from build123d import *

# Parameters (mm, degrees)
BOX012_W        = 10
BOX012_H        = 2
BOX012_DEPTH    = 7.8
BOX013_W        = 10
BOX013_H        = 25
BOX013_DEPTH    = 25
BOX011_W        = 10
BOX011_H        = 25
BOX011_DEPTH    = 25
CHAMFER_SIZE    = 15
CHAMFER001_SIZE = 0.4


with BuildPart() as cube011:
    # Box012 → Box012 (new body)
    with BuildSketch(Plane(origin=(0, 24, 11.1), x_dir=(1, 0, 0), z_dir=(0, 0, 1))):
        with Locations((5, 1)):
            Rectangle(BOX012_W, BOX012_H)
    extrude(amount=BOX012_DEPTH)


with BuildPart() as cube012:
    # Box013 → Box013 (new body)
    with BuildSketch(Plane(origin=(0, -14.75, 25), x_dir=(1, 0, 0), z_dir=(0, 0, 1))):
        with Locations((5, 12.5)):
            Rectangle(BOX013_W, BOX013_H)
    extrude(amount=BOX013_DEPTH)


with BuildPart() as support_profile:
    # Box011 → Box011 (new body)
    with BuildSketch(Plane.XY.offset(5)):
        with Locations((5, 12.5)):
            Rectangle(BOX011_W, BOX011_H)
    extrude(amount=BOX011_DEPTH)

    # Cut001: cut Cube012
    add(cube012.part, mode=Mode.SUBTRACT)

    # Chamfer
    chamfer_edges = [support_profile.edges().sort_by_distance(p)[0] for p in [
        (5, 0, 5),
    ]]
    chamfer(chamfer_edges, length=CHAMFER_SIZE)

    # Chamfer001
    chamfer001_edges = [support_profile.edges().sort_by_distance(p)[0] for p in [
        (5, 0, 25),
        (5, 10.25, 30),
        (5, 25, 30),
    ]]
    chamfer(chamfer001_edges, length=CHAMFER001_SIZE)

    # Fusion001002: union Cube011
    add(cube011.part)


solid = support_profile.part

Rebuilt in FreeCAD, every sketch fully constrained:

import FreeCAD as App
import Part
import Sketcher

V = App.Vector


def edges_at(feature, points):
    """Names of the edges that pass closest to the given points."""
    edges = feature.Shape.Edges
    near = lambda p: min(range(len(edges)), key=lambda i: edges[i].distToShape(Part.Vertex(*p))[0])
    return sorted({f"Edge{near(p) + 1}" for p in points})


def add_polygon(sketch, points):
    """Adds a closed chain of lines whose ends are joined by coincident constraints."""
    first, n = sketch.GeometryCount, len(points)
    for a, b in zip(points, points[1:] + points[:1]):
        sketch.addGeometry(Part.LineSegment(App.Vector(*a, 0), App.Vector(*b, 0)), False)
    for i in range(n):
        sketch.addConstraint(Sketcher.Constraint("Coincident", first + i, 2, first + (i + 1) % n, 1))

doc = App.newDocument("Part")
body = doc.addObject("PartDesign::Body", "Body")

sketch1 = body.newObject("Sketcher::SketchObject", "Sketch")
sketch1.AttachmentSupport = (doc.getObject("XY_Plane"), [""])
sketch1.MapMode = "FlatFace"
sketch1.AttachmentOffset = App.Placement(V(0, 0, 11.1), App.Rotation())
add_polygon(sketch1, [(0, 26), (0, 24), (10, 24), (10, 26)])
sketch1.addConstraint([
    Sketcher.Constraint("Vertical", 0),
    Sketcher.Constraint("Horizontal", 1),
    Sketcher.Constraint("Vertical", 2),
    Sketcher.Constraint("Horizontal", 3),
    Sketcher.Constraint("PointOnObject", 0, 2, -2),
    Sketcher.Constraint("DistanceX", 1, 1, 1, 2, 10.0),
    Sketcher.Constraint("DistanceY", 0, 2, 0, 1, 2.0),
    Sketcher.Constraint("DistanceY", -1, 1, 0, 2, 24.0),
])
pad1 = body.newObject("PartDesign::Pad", "Pad")
pad1.Profile = sketch1
pad1.Length = 7.8
body2 = doc.addObject("PartDesign::Body", "Body001")

sketch2 = body2.newObject("Sketcher::SketchObject", "Sketch001")
sketch2.AttachmentSupport = (doc.getObject("XY_Plane001"), [""])
sketch2.MapMode = "FlatFace"
sketch2.AttachmentOffset = App.Placement(V(0, 0, 25), App.Rotation())
add_polygon(sketch2, [(0, 10), (0, -15), (10, -15), (10, 10)])
sketch2.addConstraint([
    Sketcher.Constraint("Vertical", 0),
    Sketcher.Constraint("Horizontal", 1),
    Sketcher.Constraint("Vertical", 2),
    Sketcher.Constraint("Horizontal", 3),
    Sketcher.Constraint("PointOnObject", 0, 2, -2),
    Sketcher.Constraint("DistanceX", 1, 1, 1, 2, 10.0),
    Sketcher.Constraint("DistanceY", 0, 2, 0, 1, 25.0),
    Sketcher.Constraint("DistanceY", 0, 2, -1, 1, 14.75),
])
pad2 = body2.newObject("PartDesign::Pad", "Pad001")
pad2.Profile = sketch2
pad2.Length = 25
body3 = doc.addObject("PartDesign::Body", "Body002")

sketch3 = body3.newObject("Sketcher::SketchObject", "Sketch002")
sketch3.AttachmentSupport = (doc.getObject("XY_Plane002"), [""])
sketch3.MapMode = "FlatFace"
sketch3.AttachmentOffset = App.Placement(V(0, 0, 5), App.Rotation())
add_polygon(sketch3, [(0, 25), (0, 0), (10, 0), (10, 25)])
sketch3.addConstraint([
    Sketcher.Constraint("Vertical", 0),
    Sketcher.Constraint("Horizontal", 1),
    Sketcher.Constraint("Vertical", 2),
    Sketcher.Constraint("Horizontal", 3),
    Sketcher.Constraint("Coincident", 0, 2, -1, 1),
    Sketcher.Constraint("DistanceX", 1, 1, 1, 2, 10.0),
    Sketcher.Constraint("DistanceY", 0, 2, 0, 1, 25.0),
])
pad3 = body3.newObject("PartDesign::Pad", "Pad002")
pad3.Profile = sketch3
pad3.Length = 25
doc.recompute()

boolean = body3.newObject("PartDesign::Boolean", "Boolean")
boolean.Type = "Cut"
boolean.addObjects([body2])
doc.recompute()

chamfer = body3.newObject("PartDesign::Chamfer", "Chamfer")
chamfer.Base = (boolean, edges_at(boolean, [(5, 0, 5)]))
chamfer.Size = 15
doc.recompute()

chamfer2 = body3.newObject("PartDesign::Chamfer", "Chamfer001")
chamfer2.Base = (chamfer, edges_at(chamfer, [(5, 0, 25), (5, 10.25, 30), (5, 25, 30)]))
chamfer2.Size = 0.4
doc.recompute()

boolean2 = body3.newObject("PartDesign::Boolean", "Boolean001")
boolean2.Type = "Fuse"
boolean2.addObjects([body])

doc.recompute()
